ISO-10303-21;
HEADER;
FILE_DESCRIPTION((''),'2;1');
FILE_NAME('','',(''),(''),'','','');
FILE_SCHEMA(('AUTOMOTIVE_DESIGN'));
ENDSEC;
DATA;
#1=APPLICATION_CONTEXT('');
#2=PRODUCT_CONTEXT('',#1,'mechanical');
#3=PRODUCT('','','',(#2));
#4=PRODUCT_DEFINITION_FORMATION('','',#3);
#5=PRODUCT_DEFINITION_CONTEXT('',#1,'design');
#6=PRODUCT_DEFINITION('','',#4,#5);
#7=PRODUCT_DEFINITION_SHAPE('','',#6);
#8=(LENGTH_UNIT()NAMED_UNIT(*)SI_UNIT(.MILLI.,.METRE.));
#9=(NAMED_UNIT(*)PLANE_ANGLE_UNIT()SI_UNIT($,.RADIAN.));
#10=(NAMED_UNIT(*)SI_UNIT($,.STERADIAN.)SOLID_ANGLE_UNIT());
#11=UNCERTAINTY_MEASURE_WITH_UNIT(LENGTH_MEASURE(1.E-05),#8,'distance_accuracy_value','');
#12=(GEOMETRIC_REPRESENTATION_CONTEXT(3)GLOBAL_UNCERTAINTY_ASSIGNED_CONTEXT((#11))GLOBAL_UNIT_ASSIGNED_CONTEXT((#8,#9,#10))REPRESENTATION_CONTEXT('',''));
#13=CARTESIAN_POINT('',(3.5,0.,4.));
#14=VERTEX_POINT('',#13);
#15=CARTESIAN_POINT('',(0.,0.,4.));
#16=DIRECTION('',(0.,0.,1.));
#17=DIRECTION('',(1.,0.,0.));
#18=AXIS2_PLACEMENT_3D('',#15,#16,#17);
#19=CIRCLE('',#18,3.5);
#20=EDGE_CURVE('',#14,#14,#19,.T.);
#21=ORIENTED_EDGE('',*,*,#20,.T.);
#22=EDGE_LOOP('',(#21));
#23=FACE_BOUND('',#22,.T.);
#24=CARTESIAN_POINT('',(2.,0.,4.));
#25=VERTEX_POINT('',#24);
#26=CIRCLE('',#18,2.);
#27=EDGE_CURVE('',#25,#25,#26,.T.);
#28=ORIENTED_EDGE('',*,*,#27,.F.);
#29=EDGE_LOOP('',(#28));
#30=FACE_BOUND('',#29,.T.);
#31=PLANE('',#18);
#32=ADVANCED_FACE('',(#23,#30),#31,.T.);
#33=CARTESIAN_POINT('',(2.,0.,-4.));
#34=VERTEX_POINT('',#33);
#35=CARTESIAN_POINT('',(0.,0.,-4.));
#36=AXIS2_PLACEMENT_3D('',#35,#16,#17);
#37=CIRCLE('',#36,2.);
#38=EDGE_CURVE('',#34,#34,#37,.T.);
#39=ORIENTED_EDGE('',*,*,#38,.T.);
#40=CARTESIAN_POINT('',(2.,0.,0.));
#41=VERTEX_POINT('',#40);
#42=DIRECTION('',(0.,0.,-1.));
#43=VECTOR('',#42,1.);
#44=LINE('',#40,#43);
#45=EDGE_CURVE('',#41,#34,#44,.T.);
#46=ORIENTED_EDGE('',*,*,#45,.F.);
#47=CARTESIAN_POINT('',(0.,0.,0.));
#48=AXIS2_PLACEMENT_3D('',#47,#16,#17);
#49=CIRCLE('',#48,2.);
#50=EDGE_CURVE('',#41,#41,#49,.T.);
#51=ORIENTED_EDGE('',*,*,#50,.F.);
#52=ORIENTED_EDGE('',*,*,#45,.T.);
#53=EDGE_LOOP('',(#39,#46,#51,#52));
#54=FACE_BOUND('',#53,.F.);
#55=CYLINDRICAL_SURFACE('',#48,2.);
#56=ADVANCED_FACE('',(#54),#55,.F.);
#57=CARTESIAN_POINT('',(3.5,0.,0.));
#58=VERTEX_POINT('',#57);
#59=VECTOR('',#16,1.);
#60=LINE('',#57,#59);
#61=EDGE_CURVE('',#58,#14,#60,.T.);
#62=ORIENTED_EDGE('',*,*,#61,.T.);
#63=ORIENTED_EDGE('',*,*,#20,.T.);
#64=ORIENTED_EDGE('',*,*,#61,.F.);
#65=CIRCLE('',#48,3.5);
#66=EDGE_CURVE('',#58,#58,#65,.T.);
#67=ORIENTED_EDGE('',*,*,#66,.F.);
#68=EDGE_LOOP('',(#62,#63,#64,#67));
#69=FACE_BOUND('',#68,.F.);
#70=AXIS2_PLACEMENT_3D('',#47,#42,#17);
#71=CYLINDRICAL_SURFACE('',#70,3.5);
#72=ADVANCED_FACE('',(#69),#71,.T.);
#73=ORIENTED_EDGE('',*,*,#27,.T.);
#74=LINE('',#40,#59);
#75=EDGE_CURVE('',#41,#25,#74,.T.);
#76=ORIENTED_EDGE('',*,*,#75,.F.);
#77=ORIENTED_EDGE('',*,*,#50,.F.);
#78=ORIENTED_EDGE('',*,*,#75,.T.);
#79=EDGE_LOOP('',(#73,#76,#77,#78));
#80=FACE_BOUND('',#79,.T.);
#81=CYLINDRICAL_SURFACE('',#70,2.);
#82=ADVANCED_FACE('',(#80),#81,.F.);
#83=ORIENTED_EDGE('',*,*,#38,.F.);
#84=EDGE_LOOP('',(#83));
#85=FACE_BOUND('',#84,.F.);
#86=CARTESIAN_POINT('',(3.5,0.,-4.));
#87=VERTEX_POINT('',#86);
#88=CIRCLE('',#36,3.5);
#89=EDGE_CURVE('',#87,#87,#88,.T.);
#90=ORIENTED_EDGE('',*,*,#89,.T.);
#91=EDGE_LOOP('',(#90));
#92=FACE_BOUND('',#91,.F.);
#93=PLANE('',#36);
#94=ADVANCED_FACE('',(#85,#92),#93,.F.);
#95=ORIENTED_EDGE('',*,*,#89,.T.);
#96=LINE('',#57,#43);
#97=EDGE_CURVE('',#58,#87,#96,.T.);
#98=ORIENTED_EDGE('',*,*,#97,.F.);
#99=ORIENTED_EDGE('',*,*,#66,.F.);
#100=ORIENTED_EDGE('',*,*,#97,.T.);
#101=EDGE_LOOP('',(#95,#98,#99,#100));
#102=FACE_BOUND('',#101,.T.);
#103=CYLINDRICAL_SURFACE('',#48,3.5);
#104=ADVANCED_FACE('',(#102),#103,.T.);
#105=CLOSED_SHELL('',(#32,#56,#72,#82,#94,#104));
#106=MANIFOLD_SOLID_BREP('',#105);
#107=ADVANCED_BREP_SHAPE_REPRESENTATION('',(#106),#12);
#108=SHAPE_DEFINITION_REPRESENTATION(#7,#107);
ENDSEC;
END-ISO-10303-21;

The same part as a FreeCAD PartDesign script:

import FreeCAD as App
import Part
import Sketcher

doc = App.newDocument("Part")
body = doc.addObject("PartDesign::Body", "Body")

# Sketch on XY plane
sketch1 = doc.addObject("Sketcher::SketchObject", "Sketch")
body.addObject(sketch1)
sketch1.AttachmentSupport = (doc.XY_Plane, [""])
sketch1.MapMode = "FlatFace"
sketch1.addGeometry([
    Part.Circle(App.Vector(0, 0, 0), App.Vector(0, 0, 1), 3.5),
    Part.Circle(App.Vector(0, 0, 0), App.Vector(0, 0, 1), 2),
], False)
sketch1.addConstraint([
    Sketcher.Constraint("Coincident", 0, 3, -1, 1),
    Sketcher.Constraint("Coincident", 1, 3, -1, 1),
    Sketcher.Constraint("Diameter", 0, 7.0),
    Sketcher.Constraint("Diameter", 1, 4.0),
])
pad1 = doc.addObject("PartDesign::Pad", "Pad")
body.addObject(pad1)
pad1.Profile = sketch1
pad1.Length = 8
pad1.Midplane = True

doc.recompute()
